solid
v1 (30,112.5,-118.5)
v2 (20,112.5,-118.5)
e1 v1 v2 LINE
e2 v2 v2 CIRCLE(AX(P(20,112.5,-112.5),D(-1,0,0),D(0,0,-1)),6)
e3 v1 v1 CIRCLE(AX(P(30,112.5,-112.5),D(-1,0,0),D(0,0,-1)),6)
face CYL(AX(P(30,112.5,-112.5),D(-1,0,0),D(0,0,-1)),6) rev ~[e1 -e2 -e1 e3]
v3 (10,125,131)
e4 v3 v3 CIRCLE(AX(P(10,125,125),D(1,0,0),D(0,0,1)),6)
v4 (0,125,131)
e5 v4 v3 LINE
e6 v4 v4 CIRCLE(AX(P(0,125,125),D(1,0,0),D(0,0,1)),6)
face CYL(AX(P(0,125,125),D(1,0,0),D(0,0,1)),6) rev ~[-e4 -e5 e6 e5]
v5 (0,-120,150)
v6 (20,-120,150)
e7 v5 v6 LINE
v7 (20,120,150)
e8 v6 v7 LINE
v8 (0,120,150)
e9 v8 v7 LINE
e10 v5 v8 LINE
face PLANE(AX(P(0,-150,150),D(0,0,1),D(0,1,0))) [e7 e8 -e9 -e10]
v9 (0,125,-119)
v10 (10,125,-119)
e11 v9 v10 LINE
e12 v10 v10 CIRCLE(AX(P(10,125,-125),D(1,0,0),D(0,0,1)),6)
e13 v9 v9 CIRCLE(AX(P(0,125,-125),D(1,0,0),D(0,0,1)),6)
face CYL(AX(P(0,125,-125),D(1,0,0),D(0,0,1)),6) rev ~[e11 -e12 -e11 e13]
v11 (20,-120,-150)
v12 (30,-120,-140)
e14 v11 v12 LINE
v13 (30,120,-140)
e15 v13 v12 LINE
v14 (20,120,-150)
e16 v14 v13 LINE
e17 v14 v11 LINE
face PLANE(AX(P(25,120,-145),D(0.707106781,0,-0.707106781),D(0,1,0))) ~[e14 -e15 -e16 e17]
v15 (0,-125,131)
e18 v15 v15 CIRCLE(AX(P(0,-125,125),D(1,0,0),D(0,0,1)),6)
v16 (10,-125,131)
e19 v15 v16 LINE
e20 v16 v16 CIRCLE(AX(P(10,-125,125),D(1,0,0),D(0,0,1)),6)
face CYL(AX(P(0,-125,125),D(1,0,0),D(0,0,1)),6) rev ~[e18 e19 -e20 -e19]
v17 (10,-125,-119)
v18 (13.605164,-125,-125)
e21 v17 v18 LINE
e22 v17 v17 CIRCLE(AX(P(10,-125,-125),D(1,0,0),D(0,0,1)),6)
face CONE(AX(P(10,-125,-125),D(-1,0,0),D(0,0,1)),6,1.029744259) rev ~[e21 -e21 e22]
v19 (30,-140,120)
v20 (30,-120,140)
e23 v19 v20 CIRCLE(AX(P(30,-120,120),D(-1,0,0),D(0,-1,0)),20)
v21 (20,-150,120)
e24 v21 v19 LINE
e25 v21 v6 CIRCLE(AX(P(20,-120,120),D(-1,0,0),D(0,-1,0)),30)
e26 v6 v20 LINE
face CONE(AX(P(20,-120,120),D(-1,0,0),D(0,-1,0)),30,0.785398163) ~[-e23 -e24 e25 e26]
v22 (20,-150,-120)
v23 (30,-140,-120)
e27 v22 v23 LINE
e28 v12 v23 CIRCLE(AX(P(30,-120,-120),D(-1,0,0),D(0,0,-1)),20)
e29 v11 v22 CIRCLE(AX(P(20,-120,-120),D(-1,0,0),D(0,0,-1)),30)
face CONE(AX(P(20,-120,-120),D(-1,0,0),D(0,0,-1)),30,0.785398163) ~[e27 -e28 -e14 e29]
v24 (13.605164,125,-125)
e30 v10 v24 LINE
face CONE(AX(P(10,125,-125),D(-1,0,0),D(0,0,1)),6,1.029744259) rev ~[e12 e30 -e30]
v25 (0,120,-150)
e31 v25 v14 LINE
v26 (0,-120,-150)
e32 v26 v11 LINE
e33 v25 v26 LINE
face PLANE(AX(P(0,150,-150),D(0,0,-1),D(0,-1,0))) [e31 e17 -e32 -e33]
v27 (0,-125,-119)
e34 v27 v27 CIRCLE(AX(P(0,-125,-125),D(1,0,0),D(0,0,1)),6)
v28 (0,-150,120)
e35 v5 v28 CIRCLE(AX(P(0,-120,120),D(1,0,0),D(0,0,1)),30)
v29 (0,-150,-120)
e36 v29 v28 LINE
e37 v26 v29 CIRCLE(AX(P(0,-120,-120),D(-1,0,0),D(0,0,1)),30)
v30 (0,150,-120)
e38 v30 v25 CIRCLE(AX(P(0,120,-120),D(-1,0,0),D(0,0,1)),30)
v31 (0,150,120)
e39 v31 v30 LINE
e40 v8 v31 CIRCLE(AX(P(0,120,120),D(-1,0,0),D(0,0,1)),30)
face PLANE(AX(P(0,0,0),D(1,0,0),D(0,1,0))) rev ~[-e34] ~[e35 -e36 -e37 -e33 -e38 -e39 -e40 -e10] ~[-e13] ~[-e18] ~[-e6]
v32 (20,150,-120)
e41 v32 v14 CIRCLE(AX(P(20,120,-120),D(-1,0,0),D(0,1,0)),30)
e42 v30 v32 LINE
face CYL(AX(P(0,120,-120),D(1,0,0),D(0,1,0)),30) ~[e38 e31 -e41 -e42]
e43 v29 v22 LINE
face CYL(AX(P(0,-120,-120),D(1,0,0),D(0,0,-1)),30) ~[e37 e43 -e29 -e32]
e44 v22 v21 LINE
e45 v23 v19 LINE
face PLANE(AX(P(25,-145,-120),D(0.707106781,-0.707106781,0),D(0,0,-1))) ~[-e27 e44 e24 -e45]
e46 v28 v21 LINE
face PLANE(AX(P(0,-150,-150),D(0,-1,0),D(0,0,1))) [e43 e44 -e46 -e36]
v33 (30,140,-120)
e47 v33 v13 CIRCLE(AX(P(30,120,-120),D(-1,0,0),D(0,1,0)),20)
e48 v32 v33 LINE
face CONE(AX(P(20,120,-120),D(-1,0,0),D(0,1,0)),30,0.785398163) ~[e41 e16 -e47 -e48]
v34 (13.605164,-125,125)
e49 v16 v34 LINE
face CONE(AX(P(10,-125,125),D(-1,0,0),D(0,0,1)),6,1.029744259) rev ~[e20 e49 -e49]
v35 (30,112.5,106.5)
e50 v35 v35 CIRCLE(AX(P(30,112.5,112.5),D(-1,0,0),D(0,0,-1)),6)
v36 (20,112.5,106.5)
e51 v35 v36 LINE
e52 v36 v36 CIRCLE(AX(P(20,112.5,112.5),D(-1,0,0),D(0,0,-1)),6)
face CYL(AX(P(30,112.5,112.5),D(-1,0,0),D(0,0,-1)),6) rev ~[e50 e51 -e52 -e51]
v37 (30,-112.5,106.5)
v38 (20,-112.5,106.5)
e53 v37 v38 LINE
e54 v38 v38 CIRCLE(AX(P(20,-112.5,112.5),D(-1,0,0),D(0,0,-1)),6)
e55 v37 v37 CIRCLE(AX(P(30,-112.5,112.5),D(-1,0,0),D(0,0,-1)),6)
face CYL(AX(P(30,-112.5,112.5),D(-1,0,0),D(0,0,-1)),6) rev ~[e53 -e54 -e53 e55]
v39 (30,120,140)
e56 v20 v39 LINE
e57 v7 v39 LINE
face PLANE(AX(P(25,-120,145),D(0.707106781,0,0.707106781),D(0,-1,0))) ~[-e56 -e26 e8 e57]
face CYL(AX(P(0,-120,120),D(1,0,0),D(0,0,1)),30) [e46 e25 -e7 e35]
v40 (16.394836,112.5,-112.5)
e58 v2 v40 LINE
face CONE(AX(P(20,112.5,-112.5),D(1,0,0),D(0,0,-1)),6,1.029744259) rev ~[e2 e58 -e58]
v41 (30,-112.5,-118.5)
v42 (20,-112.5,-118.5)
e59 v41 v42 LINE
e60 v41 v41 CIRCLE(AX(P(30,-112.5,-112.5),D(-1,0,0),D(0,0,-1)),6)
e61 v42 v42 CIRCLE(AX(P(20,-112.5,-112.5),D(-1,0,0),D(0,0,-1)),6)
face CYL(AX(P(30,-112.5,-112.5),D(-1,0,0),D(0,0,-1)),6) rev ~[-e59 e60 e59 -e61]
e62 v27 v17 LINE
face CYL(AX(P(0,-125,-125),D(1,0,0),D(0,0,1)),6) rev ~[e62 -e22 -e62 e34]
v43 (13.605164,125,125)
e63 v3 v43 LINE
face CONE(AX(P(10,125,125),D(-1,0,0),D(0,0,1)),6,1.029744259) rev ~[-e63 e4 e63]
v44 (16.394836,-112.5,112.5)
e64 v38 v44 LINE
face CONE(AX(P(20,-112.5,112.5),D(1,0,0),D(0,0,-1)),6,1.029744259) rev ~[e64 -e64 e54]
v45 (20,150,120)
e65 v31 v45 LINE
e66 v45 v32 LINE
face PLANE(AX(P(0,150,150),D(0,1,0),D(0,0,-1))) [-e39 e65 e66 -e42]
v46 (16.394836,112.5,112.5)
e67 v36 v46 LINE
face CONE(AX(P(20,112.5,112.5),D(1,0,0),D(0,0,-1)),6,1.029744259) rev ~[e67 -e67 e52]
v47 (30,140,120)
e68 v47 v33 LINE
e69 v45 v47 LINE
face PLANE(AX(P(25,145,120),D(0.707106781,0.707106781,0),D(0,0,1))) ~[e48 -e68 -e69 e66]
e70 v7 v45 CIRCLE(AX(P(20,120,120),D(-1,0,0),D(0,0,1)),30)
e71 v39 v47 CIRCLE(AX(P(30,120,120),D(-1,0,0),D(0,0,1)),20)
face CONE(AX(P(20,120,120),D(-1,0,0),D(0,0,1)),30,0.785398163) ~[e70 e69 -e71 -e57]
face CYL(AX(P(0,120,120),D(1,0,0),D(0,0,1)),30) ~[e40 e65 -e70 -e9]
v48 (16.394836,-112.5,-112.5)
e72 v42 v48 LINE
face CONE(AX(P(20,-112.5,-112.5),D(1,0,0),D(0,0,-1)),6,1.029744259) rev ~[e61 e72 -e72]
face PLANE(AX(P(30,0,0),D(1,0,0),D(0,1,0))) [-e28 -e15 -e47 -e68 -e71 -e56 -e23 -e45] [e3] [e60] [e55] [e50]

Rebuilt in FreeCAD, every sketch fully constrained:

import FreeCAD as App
import Part
import Sketcher
from FreeCAD import Vector


def edges_at(feature, points):
    """Names of the edges that pass closest to the given points."""
    edges = feature.Shape.Edges
    near = lambda p: min(range(len(edges)), key=lambda i: edges[i].distToShape(Part.Vertex(*p))[0])
    return sorted({f"Edge{near(p) + 1}" for p in points})


def add_polygon(sketch, points):
    """Adds a closed chain of lines whose ends are joined by coincident constraints."""
    first, n = sketch.GeometryCount, len(points)
    for a, b in zip(points, points[1:] + points[:1]):
        sketch.addGeometry(Part.LineSegment(App.Vector(*a, 0), App.Vector(*b, 0)), False)
    for i in range(n):
        sketch.addConstraint(Sketcher.Constraint("Coincident", first + i, 2, first + (i + 1) % n, 1))

doc = App.newDocument("Part")
body = doc.addObject("PartDesign::Body", "Body")

# Sketch on YZ plane
sketch1 = body.newObject("Sketcher::SketchObject", "Sketch")
sketch1.AttachmentSupport = (doc.getObject("YZ_Plane"), [""])
sketch1.MapMode = "FlatFace"
add_polygon(sketch1, [(150, 150), (-150, 150), (-150, -150), (150, -150)])  # lines 0-3
sketch1.addConstraint(Sketcher.Constraint("Horizontal", 0))
sketch1.addConstraint(Sketcher.Constraint("Vertical", 1))
sketch1.addConstraint(Sketcher.Constraint("Horizontal", 2))
sketch1.addConstraint(Sketcher.Constraint("Vertical", 3))
sketch1.addConstraint(Sketcher.Constraint("Symmetric", 0, 2, 2, 2, -1, 1))
sketch1.addConstraint(Sketcher.Constraint("Equal", 2, 1))
sketch1.addConstraint(Sketcher.Constraint("DistanceX", 0, 2, 0, 1, 300.0))
pad1 = body.newObject("PartDesign::Pad", "Pad")
pad1.Profile = sketch1
pad1.Length = 30
doc.recompute()

fillet = body.newObject("PartDesign::Fillet", "Fillet")
fillet.Base = (pad1, edges_at(pad1, [
    (15, 150, 150),
    (15, -150, 150),
    (15, 150, -150),
    (15, -150, -150),
]))
fillet.Radius = 30
doc.recompute()

chamfer = body.newObject("PartDesign::Chamfer", "Chamfer")
chamfer.Base = (fillet, edges_at(fillet, [
    (30, 0, 150),
    (30, -141.213, 141.213),
    (30, -150, 0),
    (30, -141.213, -141.213),
    (30, 0, -150),
    (30, 141.213, -141.213),
    (30, 150, 0),
    (30, 141.213, 141.213),
]))
chamfer.Size = 10

# Sketch on YZ plane
sketch2 = body.newObject("Sketcher::SketchObject", "Sketch001")
sketch2.AttachmentSupport = (doc.getObject("YZ_Plane"), [""])
sketch2.MapMode = "FlatFace"
sketch2.AttachmentOffset = App.Placement(Vector(0, 0, 30), App.Rotation())
sketch2.addGeometry(Part.Circle(Vector(112, 112, 0), Vector(0, 0, 1), 6), False)
sketch2.addGeometry(Part.Circle(Vector(112, -112, 0), Vector(0, 0, 1), 6), False)
sketch2.addGeometry(Part.Circle(Vector(-112, 112, 0), Vector(0, 0, 1), 6), False)
sketch2.addGeometry(Part.Circle(Vector(-112, -112, 0), Vector(0, 0, 1), 6), False)
sketch2.addConstraint(Sketcher.Constraint("Equal", 0, 1))
sketch2.addConstraint(Sketcher.Constraint("Equal", 1, 2))
sketch2.addConstraint(Sketcher.Constraint("Equal", 2, 3))
sketch2.addConstraint(Sketcher.Constraint("Symmetric", 1, 3, 2, 3, -1, 1))
sketch2.addConstraint(Sketcher.Constraint("Symmetric", 0, 3, 3, 3, -1, 1))
sketch2.addConstraint(Sketcher.Constraint("Symmetric", 0, 3, 2, 3, -2))
sketch2.addConstraint(Sketcher.Constraint("Diameter", 0, 12.0))
sketch2.addConstraint(Sketcher.Constraint("DistanceY", 1, 3, 0, 3, 225.0))
sketch2.addConstraint(Sketcher.Constraint("DistanceX", 2, 3, 0, 3, 225.0))
doc.recompute()
hole = body.newObject("PartDesign::Hole", "Hole")
hole.Profile = sketch2
hole.ThreadType = "None"
hole.Diameter = 12
hole.DepthType = "Dimension"
hole.Depth = 10
hole.DrillPoint = "Angled"
hole.DrillPointAngle = 118

# Sketch on YZ plane
sketch3 = body.newObject("Sketcher::SketchObject", "Sketch002")
sketch3.AttachmentSupport = (doc.getObject("YZ_Plane"), [""])
sketch3.MapMode = "FlatFace"
sketch3.addGeometry(Part.Circle(Vector(-125, 125, 0), Vector(0, 0, 1), 6), False)
sketch3.addGeometry(Part.Circle(Vector(-125, -125, 0), Vector(0, 0, 1), 6), False)
sketch3.addGeometry(Part.Circle(Vector(125, -125, 0), Vector(0, 0, 1), 6), False)
sketch3.addGeometry(Part.Circle(Vector(125, 125, 0), Vector(0, 0, 1), 6), False)
sketch3.addConstraint(Sketcher.Constraint("Equal", 0, 1))
sketch3.addConstraint(Sketcher.Constraint("Equal", 1, 2))
sketch3.addConstraint(Sketcher.Constraint("Equal", 2, 3))
sketch3.addConstraint(Sketcher.Constraint("Symmetric", 0, 3, 2, 3, -1, 1))
sketch3.addConstraint(Sketcher.Constraint("Symmetric", 1, 3, 3, 3, -1, 1))
sketch3.addConstraint(Sketcher.Constraint("Symmetric", 1, 3, 2, 3, -2))
sketch3.addConstraint(Sketcher.Constraint("Diameter", 0, 12.0))
sketch3.addConstraint(Sketcher.Constraint("DistanceX", 0, 3, -1, 1, 125.0))
sketch3.addConstraint(Sketcher.Constraint("DistanceY", -1, 1, 0, 3, 125.0))
doc.recompute()
hole2 = body.newObject("PartDesign::Hole", "Hole001")
hole2.Profile = sketch3
hole2.ThreadType = "None"
hole2.Diameter = 12
hole2.DepthType = "Dimension"
hole2.Depth = 10
hole2.DrillPoint = "Angled"
hole2.DrillPointAngle = 118
hole2.Reversed = True

doc.recompute()
